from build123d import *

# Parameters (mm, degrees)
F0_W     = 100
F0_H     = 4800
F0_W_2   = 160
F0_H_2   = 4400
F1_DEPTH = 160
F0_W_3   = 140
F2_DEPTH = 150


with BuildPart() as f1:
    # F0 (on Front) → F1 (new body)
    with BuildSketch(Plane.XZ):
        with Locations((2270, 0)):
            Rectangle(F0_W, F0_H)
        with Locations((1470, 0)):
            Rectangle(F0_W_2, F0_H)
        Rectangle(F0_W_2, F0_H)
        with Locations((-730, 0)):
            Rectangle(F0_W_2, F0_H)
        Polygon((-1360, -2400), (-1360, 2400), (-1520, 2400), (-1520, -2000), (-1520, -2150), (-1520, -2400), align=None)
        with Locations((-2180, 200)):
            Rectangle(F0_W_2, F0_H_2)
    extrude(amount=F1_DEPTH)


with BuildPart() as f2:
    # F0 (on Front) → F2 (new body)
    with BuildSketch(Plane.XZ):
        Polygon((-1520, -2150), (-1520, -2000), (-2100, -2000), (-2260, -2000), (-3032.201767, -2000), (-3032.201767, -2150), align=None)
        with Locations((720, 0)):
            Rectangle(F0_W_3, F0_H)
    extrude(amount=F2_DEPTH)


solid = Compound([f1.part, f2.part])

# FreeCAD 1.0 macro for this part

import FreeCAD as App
import Part
import Sketcher

V = App.Vector


def add_polygon(sketch, points):
    """Adds a closed chain of lines whose ends are joined by coincident constraints."""
    first, n = sketch.GeometryCount, len(points)
    for a, b in zip(points, points[1:] + points[:1]):
        sketch.addGeometry(Part.LineSegment(App.Vector(*a, 0), App.Vector(*b, 0)), False)
    for i in range(n):
        sketch.addConstraint(Sketcher.Constraint("Coincident", first + i, 2, first + (i + 1) % n, 1))

doc = App.newDocument("Part")
body = doc.addObject("PartDesign::Body", "Body")
body.AllowCompound = True

# Sketch on XZ plane
sketch1 = doc.addObject("Sketcher::SketchObject", "Sketch")
body.addObject(sketch1)
sketch1.AttachmentSupport = (doc.XZ_Plane, [""])
sketch1.MapMode = "FlatFace"
add_polygon(sketch1, [(2220, 2400), (2220, -2400), (2320, -2400), (2320, 2400)])  # lines 0-3
add_polygon(sketch1, [(1390, 2400), (1390, -2400), (1550, -2400), (1550, 2400)])  # lines 4-7
add_polygon(sketch1, [(-80, 2400), (-80, -2400), (80, -2400), (80, 2400)])  # lines 8-11
add_polygon(sketch1, [(-810, 2400), (-810, -2400), (-650, -2400), (-650, 2400)])  # lines 12-15
add_polygon(sketch1, [(-1360, -2400), (-1360, 2400), (-1520, 2400), (-1520, -2400)])  # lines 16-19
add_polygon(sketch1, [(-2260, 2400), (-2260, -2000), (-2100, -2000), (-2100, 2400)])  # lines 20-23
sketch1.addConstraint([
    Sketcher.Constraint("Vertical", 0),
    Sketcher.Constraint("Horizontal", 1),
    Sketcher.Constraint("Vertical", 2),
    Sketcher.Constraint("Horizontal", 3),
    Sketcher.Constraint("Vertical", 4),
    Sketcher.Constraint("Horizontal", 5),
    Sketcher.Constraint("Vertical", 6),
    Sketcher.Constraint("Horizontal", 7),
    Sketcher.Constraint("Vertical", 8),
    Sketcher.Constraint("Horizontal", 9),
    Sketcher.Constraint("Vertical", 10),
    Sketcher.Constraint("Horizontal", 11),
    Sketcher.Constraint("Vertical", 12),
    Sketcher.Constraint("Horizontal", 13),
    Sketcher.Constraint("Vertical", 14),
    Sketcher.Constraint("Horizontal", 15),
    Sketcher.Constraint("Vertical", 16),
    Sketcher.Constraint("Horizontal", 17),
    Sketcher.Constraint("Vertical", 18),
    Sketcher.Constraint("Horizontal", 19),
    Sketcher.Constraint("Vertical", 20),
    Sketcher.Constraint("Horizontal", 21),
    Sketcher.Constraint("Vertical", 22),
    Sketcher.Constraint("Horizontal", 23),
    Sketcher.Constraint("Symmetric", 8, 2, 10, 2, -1, 1),
    Sketcher.Constraint("Horizontal", 1, 2, 4, 2),
    Sketcher.Constraint("Horizontal", 3, 2, 6, 2),
    Sketcher.Constraint("Horizontal", 5, 2, 8, 2),
    Sketcher.Constraint("Horizontal", 7, 2, 10, 2),
    Sketcher.Constraint("Horizontal", 9, 2, 12, 2),
    Sketcher.Constraint("Horizontal", 11, 2, 14, 2),
    Sketcher.Constraint("Horizontal", 15, 2, 16, 2),
    Sketcher.Constraint("Horizontal", 13, 2, 18, 2),
    Sketcher.Constraint("Horizontal", 17, 2, 22, 2),
    Sketcher.Constraint("Equal", 7, 9),
    Sketcher.Constraint("Equal", 11, 13),
    Sketcher.Constraint("Equal", 15, 17),
    Sketcher.Constraint("Equal", 19, 21),
    Sketcher.Constraint("DistanceX", 1, 1, 1, 2, 100.0),
    Sketcher.Constraint("DistanceX", 5, 1, 5, 2, 160.0),
    Sketcher.Constraint("DistanceY", 0, 2, 0, 1, 4800.0),
    Sketcher.Constraint("DistanceY", 20, 2, 20, 1, 4400.0),
    Sketcher.Constraint("DistanceX", -1, 1, 0, 2, 2220.0),
    Sketcher.Constraint("DistanceX", -1, 1, 4, 2, 1390.0),
    Sketcher.Constraint("DistanceX", 12, 2, -1, 1, 810.0),
    Sketcher.Constraint("DistanceX", 16, 2, -1, 1, 1360.0),
    Sketcher.Constraint("DistanceX", 20, 2, -1, 1, 2260.0),
])
pad1 = doc.addObject("PartDesign::Pad", "Pad")
body.addObject(pad1)
pad1.Profile = sketch1
pad1.Length = 160
body2 = doc.addObject("PartDesign::Body", "Body001")
body2.AllowCompound = True

# Sketch on XZ plane
sketch2 = doc.addObject("Sketcher::SketchObject", "Sketch001")
body2.addObject(sketch2)
sketch2.AttachmentSupport = (doc.getObject("XZ_Plane001"), [""])
sketch2.MapMode = "FlatFace"
add_polygon(sketch2, [(-1520, -2150), (-1520, -2000), (-3032.201767, -2000), (-3032.201767, -2150)])  # lines 0-3
add_polygon(sketch2, [(650, 2400), (650, -2400), (790, -2400), (790, 2400)])  # lines 4-7
sketch2.addConstraint([
    Sketcher.Constraint("Vertical", 0),
    Sketcher.Constraint("Horizontal", 1),
    Sketcher.Constraint("Vertical", 2),
    Sketcher.Constraint("Horizontal", 3),
    Sketcher.Constraint("Vertical", 4),
    Sketcher.Constraint("Horizontal", 5),
    Sketcher.Constraint("Vertical", 6),
    Sketcher.Constraint("Horizontal", 7),
    Sketcher.Constraint("DistanceX", 5, 1, 5, 2, 140.0),
    Sketcher.Constraint("DistanceY", 0, 1, 0, 2, 150.0),
    Sketcher.Constraint("DistanceY", 4, 2, 4, 1, 4800.0),
    Sketcher.Constraint("DistanceX", 0, 2, -1, 1, 1520.0),
    Sketcher.Constraint("DistanceY", 0, 2, -1, 1, 2000.0),
    Sketcher.Constraint("DistanceX", -1, 1, 4, 2, 650.0),
    Sketcher.Constraint("DistanceY", 4, 2, -1, 1, 2400.0),
    Sketcher.Constraint("DistanceX", 1, 2, 1, 1, 1512.201767),
])
pad2 = doc.addObject("PartDesign::Pad", "Pad001")
body2.addObject(pad2)
pad2.Profile = sketch2
pad2.Length = 150

doc.recompute()
